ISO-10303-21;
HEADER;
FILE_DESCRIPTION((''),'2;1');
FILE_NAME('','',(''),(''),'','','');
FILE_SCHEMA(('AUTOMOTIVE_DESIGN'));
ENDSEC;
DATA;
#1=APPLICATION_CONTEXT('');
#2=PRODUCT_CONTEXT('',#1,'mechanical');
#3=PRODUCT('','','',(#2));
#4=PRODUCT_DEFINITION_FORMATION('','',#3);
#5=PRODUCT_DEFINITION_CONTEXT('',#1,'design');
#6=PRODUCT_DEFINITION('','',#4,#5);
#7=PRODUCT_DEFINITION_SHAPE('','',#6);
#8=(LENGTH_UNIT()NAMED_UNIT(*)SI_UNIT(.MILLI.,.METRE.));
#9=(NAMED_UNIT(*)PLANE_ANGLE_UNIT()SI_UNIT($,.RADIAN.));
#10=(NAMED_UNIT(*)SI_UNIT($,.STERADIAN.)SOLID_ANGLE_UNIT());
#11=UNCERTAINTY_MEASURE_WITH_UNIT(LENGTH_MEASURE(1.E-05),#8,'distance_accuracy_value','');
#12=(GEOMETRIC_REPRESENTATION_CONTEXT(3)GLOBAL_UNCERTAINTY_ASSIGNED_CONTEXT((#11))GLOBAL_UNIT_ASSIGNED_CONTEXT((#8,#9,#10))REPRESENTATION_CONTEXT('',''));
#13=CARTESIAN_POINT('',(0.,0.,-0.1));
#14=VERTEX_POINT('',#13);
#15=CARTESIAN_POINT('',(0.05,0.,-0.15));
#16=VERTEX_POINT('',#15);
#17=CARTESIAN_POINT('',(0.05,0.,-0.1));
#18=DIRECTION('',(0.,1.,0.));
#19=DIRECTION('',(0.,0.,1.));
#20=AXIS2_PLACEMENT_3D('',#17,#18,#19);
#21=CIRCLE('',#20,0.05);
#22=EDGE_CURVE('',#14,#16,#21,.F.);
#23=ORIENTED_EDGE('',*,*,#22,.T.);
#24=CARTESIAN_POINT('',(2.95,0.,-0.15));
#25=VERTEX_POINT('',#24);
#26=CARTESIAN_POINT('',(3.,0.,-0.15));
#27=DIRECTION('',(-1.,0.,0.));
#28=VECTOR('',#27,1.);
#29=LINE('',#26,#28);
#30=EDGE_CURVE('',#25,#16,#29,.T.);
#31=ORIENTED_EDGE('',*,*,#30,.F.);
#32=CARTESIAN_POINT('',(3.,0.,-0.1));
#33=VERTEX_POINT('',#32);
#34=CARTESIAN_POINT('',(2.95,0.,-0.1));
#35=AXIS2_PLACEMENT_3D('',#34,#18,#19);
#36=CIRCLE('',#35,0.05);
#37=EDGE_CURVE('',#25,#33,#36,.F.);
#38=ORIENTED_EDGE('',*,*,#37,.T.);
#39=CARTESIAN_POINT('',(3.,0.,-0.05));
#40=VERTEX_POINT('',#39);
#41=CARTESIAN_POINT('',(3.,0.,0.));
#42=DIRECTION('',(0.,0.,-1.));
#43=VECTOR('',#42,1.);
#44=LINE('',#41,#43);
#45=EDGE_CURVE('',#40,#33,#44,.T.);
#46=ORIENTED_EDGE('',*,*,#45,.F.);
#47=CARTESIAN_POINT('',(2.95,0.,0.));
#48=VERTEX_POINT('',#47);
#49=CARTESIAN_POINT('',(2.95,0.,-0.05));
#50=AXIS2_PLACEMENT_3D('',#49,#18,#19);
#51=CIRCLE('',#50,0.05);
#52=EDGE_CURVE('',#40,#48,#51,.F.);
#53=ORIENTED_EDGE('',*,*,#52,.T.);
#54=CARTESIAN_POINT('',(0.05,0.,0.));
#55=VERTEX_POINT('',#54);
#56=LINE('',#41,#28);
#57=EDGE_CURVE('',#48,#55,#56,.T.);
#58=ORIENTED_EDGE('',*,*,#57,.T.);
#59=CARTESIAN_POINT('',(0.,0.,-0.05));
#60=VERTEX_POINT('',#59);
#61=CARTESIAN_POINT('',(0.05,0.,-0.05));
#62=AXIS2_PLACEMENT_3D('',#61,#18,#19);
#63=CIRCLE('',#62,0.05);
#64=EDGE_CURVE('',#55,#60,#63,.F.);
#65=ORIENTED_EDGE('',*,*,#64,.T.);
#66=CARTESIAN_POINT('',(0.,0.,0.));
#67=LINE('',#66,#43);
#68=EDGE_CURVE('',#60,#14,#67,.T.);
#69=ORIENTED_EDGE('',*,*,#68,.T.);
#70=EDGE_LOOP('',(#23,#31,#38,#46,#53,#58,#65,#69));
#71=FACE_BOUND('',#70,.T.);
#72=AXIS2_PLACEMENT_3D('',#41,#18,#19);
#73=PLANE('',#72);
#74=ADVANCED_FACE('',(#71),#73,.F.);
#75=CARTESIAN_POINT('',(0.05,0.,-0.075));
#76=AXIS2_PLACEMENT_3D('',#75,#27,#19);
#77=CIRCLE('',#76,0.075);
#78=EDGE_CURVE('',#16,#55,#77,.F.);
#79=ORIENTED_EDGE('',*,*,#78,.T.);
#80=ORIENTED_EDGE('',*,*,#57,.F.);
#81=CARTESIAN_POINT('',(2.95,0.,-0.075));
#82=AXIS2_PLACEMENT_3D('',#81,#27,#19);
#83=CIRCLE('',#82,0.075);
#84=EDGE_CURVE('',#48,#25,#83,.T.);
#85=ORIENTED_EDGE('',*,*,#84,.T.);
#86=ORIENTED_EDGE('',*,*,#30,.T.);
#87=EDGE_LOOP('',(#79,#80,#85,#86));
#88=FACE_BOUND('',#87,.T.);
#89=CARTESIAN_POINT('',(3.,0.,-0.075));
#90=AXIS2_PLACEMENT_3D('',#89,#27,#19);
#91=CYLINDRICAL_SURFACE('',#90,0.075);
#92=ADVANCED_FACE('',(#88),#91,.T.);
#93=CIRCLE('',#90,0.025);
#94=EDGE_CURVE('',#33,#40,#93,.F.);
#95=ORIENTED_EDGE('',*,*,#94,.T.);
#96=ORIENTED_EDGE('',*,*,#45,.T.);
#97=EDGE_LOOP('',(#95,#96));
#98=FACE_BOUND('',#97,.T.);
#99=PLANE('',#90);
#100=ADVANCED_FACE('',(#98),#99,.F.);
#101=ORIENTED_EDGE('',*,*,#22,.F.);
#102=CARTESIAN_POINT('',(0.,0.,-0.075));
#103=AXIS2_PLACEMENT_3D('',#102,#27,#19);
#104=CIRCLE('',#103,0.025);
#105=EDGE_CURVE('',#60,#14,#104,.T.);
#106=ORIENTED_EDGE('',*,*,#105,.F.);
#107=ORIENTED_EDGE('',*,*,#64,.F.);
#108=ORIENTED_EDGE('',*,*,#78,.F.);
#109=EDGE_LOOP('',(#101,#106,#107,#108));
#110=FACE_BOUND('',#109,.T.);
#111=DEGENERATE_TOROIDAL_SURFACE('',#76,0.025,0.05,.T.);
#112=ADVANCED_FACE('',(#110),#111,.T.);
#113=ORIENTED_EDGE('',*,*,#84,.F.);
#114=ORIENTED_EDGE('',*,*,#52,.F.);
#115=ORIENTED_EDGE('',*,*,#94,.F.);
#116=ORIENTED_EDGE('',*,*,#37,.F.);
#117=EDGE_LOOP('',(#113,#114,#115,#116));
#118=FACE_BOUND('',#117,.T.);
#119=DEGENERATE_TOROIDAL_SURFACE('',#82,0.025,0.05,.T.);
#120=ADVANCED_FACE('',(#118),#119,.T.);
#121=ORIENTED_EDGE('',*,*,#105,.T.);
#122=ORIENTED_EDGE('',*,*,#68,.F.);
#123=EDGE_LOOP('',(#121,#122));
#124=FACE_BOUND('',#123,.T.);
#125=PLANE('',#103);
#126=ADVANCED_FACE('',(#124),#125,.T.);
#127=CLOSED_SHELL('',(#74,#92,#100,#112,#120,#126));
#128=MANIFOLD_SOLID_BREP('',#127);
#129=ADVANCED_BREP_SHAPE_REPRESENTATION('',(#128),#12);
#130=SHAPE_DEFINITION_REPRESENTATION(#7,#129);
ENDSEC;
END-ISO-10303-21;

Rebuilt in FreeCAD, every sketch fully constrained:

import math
import FreeCAD as App
import Part
import Sketcher

V = App.Vector
Q = App.Units.Quantity


def edges_at(feature, points):
    """Names of the edges that pass closest to the given points."""
    edges = feature.Shape.Edges
    near = lambda p: min(range(len(edges)), key=lambda i: edges[i].distToShape(Part.Vertex(*p))[0])
    return sorted({f"Edge{near(p) + 1}" for p in points})

doc = App.newDocument("Part")
body = doc.addObject("PartDesign::Body", "Body")

# Sketch on YZ plane
sketch1 = doc.addObject("Sketcher::SketchObject", "Sketch")
body.addObject(sketch1)
sketch1.AttachmentSupport = (doc.YZ_Plane, [""])
sketch1.MapMode = "FlatFace"
sketch1.addGeometry([
    Part.LineSegment(V(0, 0, 0), V(0, -0.15, 0)),
    Part.ArcOfCircle(Part.Circle(V(0, -0.075, 0), V(0, 0, 1), 0.075), math.radians(-90), math.radians(90)),
], False)
sketch1.addConstraint([
    Sketcher.Constraint("Coincident", 0, 1, 1, 2),
    Sketcher.Constraint("Coincident", 1, 1, 0, 2),
    Sketcher.Constraint("Vertical", 0),
    Sketcher.Constraint("Coincident", 0, 1, -1, 1),
    Sketcher.Constraint("PointOnObject", 1, 3, -2),
    Sketcher.Constraint("Radius", 1, Q("0.075 mm")),
])
pad1 = doc.addObject("PartDesign::Pad", "Pad")
body.addObject(pad1)
pad1.Profile = sketch1
pad1.Length = 3
doc.recompute()

fillet = doc.addObject("PartDesign::Fillet", "Fillet")
body.addObject(fillet)
fillet.Base = (pad1, edges_at(pad1, [(0, 0.075, -0.075), (3, 0.075, -0.075)]))
fillet.Radius = 0.05

doc.recompute()
